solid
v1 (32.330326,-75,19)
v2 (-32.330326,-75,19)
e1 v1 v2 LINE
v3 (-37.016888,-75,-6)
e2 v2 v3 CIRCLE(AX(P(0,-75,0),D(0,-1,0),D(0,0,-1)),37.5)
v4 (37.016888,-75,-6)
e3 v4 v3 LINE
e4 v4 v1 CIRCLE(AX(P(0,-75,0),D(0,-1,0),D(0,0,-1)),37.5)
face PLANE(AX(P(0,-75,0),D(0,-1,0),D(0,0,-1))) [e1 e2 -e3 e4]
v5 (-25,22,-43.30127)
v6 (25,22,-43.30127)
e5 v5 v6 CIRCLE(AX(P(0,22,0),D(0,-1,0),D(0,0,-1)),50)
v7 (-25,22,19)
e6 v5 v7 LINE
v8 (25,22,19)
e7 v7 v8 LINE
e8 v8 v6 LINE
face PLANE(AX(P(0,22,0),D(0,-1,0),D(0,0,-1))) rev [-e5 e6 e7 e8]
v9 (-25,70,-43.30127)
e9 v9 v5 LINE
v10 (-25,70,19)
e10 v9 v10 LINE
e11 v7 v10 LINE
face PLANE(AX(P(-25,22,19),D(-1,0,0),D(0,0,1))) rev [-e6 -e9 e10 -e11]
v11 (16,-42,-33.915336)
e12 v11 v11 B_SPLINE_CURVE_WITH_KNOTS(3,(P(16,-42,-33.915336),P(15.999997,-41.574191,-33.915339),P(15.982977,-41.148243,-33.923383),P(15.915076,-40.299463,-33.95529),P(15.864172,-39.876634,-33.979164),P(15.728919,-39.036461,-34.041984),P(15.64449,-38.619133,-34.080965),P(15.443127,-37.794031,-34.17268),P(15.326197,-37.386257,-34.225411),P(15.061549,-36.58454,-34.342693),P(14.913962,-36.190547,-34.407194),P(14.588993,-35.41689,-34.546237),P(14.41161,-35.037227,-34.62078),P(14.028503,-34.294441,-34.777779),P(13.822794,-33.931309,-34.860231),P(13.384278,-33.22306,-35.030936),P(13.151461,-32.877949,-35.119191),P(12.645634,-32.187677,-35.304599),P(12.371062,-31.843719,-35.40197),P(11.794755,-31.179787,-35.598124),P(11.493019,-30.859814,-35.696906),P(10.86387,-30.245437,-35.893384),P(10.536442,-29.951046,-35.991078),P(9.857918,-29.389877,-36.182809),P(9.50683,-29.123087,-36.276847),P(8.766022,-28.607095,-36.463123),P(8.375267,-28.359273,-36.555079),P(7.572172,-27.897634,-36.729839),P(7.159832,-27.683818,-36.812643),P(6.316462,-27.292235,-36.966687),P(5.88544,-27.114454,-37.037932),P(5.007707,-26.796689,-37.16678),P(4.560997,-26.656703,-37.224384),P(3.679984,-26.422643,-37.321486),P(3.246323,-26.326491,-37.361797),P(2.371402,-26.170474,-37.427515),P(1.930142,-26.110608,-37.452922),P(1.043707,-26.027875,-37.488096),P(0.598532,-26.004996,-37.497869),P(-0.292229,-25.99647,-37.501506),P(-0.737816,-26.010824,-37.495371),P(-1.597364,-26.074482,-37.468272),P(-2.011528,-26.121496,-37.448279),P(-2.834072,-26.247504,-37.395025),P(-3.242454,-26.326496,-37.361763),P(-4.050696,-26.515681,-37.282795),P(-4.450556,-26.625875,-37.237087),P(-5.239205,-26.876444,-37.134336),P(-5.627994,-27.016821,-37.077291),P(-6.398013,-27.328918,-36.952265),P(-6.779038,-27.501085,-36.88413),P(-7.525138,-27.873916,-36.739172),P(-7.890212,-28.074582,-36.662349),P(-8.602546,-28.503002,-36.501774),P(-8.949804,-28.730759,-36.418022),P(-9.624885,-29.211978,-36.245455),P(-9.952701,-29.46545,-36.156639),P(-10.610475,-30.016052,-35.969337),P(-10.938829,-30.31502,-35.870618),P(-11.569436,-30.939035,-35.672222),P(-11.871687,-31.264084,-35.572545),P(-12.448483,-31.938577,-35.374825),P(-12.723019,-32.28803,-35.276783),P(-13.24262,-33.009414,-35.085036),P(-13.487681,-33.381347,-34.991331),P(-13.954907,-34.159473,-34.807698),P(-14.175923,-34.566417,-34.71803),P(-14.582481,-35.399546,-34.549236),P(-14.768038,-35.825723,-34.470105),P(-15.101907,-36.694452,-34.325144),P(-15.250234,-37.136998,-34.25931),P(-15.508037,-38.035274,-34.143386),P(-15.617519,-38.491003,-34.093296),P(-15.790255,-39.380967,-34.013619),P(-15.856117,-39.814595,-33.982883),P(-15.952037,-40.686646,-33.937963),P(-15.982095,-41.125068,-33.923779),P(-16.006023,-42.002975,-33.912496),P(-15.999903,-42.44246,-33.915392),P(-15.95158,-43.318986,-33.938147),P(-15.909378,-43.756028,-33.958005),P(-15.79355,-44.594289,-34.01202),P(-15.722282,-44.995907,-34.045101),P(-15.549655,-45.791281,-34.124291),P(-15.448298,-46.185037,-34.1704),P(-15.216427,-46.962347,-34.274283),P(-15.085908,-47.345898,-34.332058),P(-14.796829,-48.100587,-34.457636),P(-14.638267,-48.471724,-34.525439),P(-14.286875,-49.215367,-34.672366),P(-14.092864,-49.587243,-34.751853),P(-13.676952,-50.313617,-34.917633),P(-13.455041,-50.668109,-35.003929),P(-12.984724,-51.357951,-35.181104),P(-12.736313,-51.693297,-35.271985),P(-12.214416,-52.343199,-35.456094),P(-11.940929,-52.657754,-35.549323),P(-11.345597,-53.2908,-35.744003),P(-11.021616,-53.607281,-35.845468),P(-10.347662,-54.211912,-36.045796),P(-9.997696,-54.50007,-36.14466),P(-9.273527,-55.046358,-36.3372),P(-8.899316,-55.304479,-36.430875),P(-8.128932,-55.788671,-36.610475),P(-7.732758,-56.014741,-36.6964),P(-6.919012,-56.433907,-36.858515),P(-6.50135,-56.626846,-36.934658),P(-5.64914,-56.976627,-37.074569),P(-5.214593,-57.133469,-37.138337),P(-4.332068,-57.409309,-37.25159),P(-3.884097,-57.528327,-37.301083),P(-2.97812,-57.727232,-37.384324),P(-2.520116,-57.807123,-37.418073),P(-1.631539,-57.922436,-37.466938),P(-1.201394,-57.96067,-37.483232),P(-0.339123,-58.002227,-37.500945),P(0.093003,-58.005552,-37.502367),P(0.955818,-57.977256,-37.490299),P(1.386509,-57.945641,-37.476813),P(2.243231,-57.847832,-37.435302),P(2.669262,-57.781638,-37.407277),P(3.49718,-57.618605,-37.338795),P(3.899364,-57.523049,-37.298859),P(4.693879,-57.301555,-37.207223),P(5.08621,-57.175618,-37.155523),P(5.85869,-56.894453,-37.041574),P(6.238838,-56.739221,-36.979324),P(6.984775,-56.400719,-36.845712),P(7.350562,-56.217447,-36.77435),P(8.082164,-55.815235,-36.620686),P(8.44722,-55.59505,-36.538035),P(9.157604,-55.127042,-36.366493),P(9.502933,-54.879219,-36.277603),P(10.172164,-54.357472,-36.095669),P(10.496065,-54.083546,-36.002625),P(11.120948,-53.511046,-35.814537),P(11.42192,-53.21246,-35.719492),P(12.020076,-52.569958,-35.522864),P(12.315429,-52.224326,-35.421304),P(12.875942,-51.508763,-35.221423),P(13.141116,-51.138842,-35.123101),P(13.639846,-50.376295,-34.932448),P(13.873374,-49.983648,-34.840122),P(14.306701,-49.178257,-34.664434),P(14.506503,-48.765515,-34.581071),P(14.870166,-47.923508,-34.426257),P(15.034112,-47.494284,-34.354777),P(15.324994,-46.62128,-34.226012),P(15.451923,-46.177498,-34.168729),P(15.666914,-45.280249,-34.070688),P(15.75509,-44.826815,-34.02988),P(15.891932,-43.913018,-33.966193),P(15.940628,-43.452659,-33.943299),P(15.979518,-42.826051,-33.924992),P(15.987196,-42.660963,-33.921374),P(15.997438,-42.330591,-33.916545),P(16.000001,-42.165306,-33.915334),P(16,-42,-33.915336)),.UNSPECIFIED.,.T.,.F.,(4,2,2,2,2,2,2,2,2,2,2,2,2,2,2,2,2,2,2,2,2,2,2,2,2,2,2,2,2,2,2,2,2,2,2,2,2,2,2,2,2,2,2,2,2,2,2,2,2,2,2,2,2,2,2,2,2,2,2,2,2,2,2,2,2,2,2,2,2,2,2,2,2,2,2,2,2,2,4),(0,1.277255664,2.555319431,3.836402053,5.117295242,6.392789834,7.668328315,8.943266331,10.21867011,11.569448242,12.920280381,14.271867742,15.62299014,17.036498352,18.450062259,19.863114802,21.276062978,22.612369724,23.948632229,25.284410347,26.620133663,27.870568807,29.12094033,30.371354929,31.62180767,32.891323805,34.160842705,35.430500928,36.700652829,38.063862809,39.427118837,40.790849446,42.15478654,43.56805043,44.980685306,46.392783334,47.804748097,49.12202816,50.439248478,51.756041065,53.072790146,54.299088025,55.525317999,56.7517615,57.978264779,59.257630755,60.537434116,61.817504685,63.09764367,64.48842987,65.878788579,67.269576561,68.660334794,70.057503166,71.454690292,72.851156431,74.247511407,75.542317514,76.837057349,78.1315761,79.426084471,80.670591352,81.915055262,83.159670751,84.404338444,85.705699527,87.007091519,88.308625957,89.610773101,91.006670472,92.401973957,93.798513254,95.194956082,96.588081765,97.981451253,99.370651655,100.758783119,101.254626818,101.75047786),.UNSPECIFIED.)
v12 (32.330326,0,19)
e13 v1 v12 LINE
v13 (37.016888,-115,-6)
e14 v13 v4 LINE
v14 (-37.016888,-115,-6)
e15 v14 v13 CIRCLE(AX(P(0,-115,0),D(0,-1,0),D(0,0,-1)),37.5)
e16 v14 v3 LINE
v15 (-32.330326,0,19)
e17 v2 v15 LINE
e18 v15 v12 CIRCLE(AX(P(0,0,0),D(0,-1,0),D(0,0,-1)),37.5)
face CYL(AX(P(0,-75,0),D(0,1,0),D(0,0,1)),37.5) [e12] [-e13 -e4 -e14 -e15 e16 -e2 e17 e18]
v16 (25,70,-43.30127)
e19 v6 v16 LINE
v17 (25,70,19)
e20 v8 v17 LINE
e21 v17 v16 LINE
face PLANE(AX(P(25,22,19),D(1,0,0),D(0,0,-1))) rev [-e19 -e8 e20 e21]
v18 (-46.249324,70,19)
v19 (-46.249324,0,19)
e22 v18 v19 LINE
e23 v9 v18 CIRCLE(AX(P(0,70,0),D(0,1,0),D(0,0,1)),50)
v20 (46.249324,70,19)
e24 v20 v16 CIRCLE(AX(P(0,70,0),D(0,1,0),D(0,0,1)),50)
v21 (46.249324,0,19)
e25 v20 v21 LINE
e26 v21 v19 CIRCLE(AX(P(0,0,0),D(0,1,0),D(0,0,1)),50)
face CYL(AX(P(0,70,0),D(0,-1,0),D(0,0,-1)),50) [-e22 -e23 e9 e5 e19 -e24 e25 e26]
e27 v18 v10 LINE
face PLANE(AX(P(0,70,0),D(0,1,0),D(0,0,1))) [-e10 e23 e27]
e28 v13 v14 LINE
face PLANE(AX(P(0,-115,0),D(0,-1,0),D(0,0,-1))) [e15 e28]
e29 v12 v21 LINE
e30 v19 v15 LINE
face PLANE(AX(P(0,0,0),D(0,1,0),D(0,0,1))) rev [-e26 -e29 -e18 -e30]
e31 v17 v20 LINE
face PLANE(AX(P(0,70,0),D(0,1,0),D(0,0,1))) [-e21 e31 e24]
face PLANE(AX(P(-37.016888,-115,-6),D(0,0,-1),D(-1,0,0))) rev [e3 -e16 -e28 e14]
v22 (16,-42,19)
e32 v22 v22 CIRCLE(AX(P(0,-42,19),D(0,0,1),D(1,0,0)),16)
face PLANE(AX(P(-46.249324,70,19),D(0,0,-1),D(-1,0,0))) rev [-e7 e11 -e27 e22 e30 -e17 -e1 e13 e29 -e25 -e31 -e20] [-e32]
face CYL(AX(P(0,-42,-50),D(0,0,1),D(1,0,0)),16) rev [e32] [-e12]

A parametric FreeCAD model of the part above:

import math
import FreeCAD as App
import Part
import Sketcher
Q = App.Units.Quantity


def add_polygon(sketch, points):
    """Adds a closed chain of lines whose ends are joined by coincident constraints."""
    first, n = sketch.GeometryCount, len(points)
    for a, b in zip(points, points[1:] + points[:1]):
        sketch.addGeometry(Part.LineSegment(App.Vector(*a, 0), App.Vector(*b, 0)), False)
    for i in range(n):
        sketch.addConstraint(Sketcher.Constraint("Coincident", first + i, 2, first + (i + 1) % n, 1))

doc = App.newDocument("Part")
body = doc.addObject("PartDesign::Body", "Body")

# Sketch on XZ plane
sketch1 = body.newObject("Sketcher::SketchObject", "Sketch")
sketch1.AttachmentSupport = (doc.getObject("XZ_Plane"), [""])
sketch1.MapMode = "FlatFace"
sketch1.addGeometry(Part.LineSegment(App.Vector(-46, 19, 0), App.Vector(46, 19, 0)), False)
sketch1.addGeometry(Part.ArcOfCircle(Part.Circle(App.Vector(0, 0, 0), App.Vector(0, 0, 1), 50), math.radians(158), math.radians(382)), False)
sketch1.addConstraint(Sketcher.Constraint("Coincident", 0, 1, 1, 1))
sketch1.addConstraint(Sketcher.Constraint("Coincident", 1, 2, 0, 2))
sketch1.addConstraint(Sketcher.Constraint("Horizontal", 0))
sketch1.addConstraint(Sketcher.Constraint("Coincident", 1, 3, -1, 1))
sketch1.addConstraint(Sketcher.Constraint("Radius", 1, Q("50 mm")))
sketch1.addConstraint(Sketcher.Constraint("DistanceY", -1, 1, 0, 1, Q("19 mm")))
pad1 = body.newObject("PartDesign::Pad", "Pad")
pad1.Profile = sketch1
pad1.Length = 70
pad1.Reversed = True

# Sketch on XZ plane
sketch2 = body.newObject("Sketcher::SketchObject", "Sketch001")
sketch2.AttachmentSupport = (doc.getObject("XZ_Plane"), [""])
sketch2.MapMode = "FlatFace"
sketch2.AttachmentOffset = App.Placement(App.Vector(0, 0, -70), App.Rotation())
add_polygon(sketch2, [(-25, -56), (-25, 19), (25, 19), (25, -56)])  # lines 0-3
sketch2.addConstraint(Sketcher.Constraint("Vertical", 0))
sketch2.addConstraint(Sketcher.Constraint("Horizontal", 1))
sketch2.addConstraint(Sketcher.Constraint("Vertical", 2))
sketch2.addConstraint(Sketcher.Constraint("Horizontal", 3))
sketch2.addConstraint(Sketcher.Constraint("DistanceX", 1, 1, 1, 2, Q("50 mm")))
sketch2.addConstraint(Sketcher.Constraint("DistanceX", 0, 2, -1, 1, Q("25 mm")))
sketch2.addConstraint(Sketcher.Constraint("DistanceY", -1, 1, 0, 2, Q("19 mm")))
sketch2.addConstraint(Sketcher.Constraint("DistanceY", 0, 1, 0, 2, Q("74.667138 mm")))
pocket1 = body.newObject("PartDesign::Pocket", "Pocket")
pocket1.Profile = sketch2
pocket1.Length = 48
pocket1.Reversed = True

# Sketch on XZ plane
sketch3 = body.newObject("Sketcher::SketchObject", "Sketch002")
sketch3.AttachmentSupport = (doc.getObject("XZ_Plane"), [""])
sketch3.MapMode = "FlatFace"
sketch3.addGeometry(Part.LineSegment(App.Vector(32, 19, 0), App.Vector(-32, 19, 0)), False)
sketch3.addGeometry(Part.ArcOfCircle(Part.Circle(App.Vector(0, 0, 0), App.Vector(0, 0, 1), 38), math.radians(150), math.radians(390)), False)
sketch3.addConstraint(Sketcher.Constraint("Coincident", 0, 1, 1, 2))
sketch3.addConstraint(Sketcher.Constraint("Coincident", 1, 1, 0, 2))
sketch3.addConstraint(Sketcher.Constraint("Horizontal", 0))
sketch3.addConstraint(Sketcher.Constraint("Coincident", 1, 3, -1, 1))
sketch3.addConstraint(Sketcher.Constraint("Radius", 1, Q("37.5 mm")))
sketch3.addConstraint(Sketcher.Constraint("DistanceY", -1, 1, 0, 1, Q("19 mm")))
pad2 = body.newObject("PartDesign::Pad", "Pad001")
pad2.Profile = sketch3
pad2.Length = 75

# Sketch on XZ plane
sketch4 = body.newObject("Sketcher::SketchObject", "Sketch003")
sketch4.AttachmentSupport = (doc.getObject("XZ_Plane"), [""])
sketch4.MapMode = "FlatFace"
sketch4.AttachmentOffset = App.Placement(App.Vector(0, 0, 75), App.Rotation())
sketch4.addGeometry(Part.LineSegment(App.Vector(37, -6, 0), App.Vector(-37, -6, 0)), False)
sketch4.addGeometry(Part.ArcOfCircle(Part.Circle(App.Vector(0, 0, 0), App.Vector(0, 0, 1), 38), math.radians(-171), math.radians(-9)), False)
sketch4.addConstraint(Sketcher.Constraint("Coincident", 0, 1, 1, 2))
sketch4.addConstraint(Sketcher.Constraint("Coincident", 1, 1, 0, 2))
sketch4.addConstraint(Sketcher.Constraint("Horizontal", 0))
sketch4.addConstraint(Sketcher.Constraint("Coincident", 1, 3, -1, 1))
sketch4.addConstraint(Sketcher.Constraint("Radius", 1, Q("37.5 mm")))
sketch4.addConstraint(Sketcher.Constraint("DistanceY", 0, 1, -1, 1, Q("6 mm")))
pad3 = body.newObject("PartDesign::Pad", "Pad002")
pad3.Profile = sketch4
pad3.Length = 40

# Sketch on XY plane
sketch5 = body.newObject("Sketcher::SketchObject", "Sketch004")
sketch5.AttachmentSupport = (doc.getObject("XY_Plane"), [""])
sketch5.MapMode = "FlatFace"
sketch5.AttachmentOffset = App.Placement(App.Vector(0, 0, 19), App.Rotation())
sketch5.addGeometry(Part.Circle(App.Vector(0, -42, 0), App.Vector(0, 0, 1), 16), False)
sketch5.addConstraint(Sketcher.Constraint("PointOnObject", 0, 3, -2))
sketch5.addConstraint(Sketcher.Constraint("Diameter", 0, Q("32 mm")))
sketch5.addConstraint(Sketcher.Constraint("DistanceY", 0, 3, -1, 1, Q("42 mm")))
pocket2 = body.newObject("PartDesign::Pocket", "Pocket001")
pocket2.Profile = sketch5
pocket2.Type = "ThroughAll"

doc.recompute()
